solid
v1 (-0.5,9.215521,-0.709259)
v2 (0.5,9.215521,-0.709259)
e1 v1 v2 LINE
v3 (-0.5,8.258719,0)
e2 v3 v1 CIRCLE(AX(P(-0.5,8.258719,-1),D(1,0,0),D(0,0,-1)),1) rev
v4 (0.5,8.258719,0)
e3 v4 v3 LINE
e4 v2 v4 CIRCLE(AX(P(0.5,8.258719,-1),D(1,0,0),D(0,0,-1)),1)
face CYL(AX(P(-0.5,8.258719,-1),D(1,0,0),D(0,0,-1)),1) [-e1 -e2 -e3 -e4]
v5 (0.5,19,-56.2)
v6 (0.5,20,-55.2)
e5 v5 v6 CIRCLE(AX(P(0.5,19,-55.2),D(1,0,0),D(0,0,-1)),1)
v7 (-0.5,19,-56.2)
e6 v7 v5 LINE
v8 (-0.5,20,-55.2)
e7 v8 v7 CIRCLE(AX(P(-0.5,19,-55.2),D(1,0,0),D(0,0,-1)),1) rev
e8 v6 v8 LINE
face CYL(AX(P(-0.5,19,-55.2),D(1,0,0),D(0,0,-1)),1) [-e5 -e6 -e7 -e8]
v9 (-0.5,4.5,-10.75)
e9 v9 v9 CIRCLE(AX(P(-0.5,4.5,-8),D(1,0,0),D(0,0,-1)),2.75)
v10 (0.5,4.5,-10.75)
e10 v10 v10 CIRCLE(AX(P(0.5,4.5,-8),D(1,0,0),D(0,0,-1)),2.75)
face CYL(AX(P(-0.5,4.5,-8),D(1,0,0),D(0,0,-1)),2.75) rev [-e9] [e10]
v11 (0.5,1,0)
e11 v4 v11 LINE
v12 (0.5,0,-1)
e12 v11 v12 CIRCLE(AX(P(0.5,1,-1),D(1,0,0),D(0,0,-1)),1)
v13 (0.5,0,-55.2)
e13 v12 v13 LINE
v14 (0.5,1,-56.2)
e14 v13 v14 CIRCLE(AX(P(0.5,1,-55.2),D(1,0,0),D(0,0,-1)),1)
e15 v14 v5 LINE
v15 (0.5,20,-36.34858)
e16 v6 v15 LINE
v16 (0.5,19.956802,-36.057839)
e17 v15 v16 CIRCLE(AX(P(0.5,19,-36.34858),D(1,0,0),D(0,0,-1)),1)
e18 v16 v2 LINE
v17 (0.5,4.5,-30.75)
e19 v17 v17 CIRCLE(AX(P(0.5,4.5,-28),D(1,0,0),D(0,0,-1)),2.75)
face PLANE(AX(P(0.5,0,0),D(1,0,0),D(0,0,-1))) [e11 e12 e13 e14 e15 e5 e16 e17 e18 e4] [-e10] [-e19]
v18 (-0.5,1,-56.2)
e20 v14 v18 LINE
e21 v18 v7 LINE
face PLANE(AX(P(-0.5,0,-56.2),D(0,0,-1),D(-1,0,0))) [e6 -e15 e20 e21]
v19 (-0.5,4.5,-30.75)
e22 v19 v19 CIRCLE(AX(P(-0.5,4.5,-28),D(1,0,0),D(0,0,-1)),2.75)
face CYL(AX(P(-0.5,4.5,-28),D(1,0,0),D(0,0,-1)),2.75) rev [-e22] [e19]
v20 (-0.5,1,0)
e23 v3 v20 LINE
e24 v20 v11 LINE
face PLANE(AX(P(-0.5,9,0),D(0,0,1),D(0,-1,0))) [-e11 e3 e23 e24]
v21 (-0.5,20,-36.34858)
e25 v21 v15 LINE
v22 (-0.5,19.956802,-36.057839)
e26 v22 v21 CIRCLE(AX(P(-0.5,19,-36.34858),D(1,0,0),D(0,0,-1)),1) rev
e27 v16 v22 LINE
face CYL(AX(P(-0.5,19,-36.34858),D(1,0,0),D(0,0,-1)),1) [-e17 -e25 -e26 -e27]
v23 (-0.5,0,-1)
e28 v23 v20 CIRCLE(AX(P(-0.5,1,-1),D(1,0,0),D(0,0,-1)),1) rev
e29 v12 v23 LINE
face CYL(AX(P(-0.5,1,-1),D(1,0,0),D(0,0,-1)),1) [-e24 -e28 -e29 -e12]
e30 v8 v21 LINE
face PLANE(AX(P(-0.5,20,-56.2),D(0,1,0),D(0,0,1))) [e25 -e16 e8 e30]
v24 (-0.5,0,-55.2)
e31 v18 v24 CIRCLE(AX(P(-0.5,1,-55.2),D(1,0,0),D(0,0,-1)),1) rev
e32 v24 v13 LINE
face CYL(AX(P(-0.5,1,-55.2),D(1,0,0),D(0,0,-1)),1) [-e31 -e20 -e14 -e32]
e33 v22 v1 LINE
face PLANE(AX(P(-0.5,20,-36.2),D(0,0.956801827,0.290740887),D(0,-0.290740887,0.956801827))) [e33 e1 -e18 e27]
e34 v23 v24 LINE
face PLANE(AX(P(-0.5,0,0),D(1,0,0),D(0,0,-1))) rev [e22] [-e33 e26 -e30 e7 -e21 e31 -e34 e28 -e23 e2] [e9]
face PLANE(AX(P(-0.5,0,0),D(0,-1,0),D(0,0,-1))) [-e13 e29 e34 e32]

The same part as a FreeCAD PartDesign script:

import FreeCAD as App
import Part
import Sketcher

V = App.Vector
Q = App.Units.Quantity


def edges_at(feature, points):
    """Names of the edges that pass closest to the given points."""
    edges = feature.Shape.Edges
    near = lambda p: min(range(len(edges)), key=lambda i: edges[i].distToShape(Part.Vertex(*p))[0])
    return sorted({f"Edge{near(p) + 1}" for p in points})

doc = App.newDocument("Part")
body = doc.addObject("PartDesign::Body", "Body")

sketch1 = body.newObject("Sketcher::SketchObject", "Sketch")
sketch1.AttachmentSupport = (doc.getObject("YZ_Plane"), [""])
sketch1.MapMode = "FlatFace"
sketch1.addGeometry([
    Part.LineSegment(V(0, 0, 0), V(0, -56.2, 0)),
    Part.LineSegment(V(0, -56.2, 0), V(20, -56.2, 0)),
    Part.LineSegment(V(20, -56.2, 0), V(20, -36.2, 0)),
    Part.LineSegment(V(20, -36.2, 0), V(9, 0, 0)),
    Part.LineSegment(V(9, 0, 0), V(0, 0, 0)),
], False)
sketch1.addConstraint([
    Sketcher.Constraint("Coincident", 0, 2, 1, 1),
    Sketcher.Constraint("Coincident", 1, 2, 2, 1),
    Sketcher.Constraint("Coincident", 2, 2, 3, 1),
    Sketcher.Constraint("Coincident", 3, 2, 4, 1),
    Sketcher.Constraint("Coincident", 4, 2, 0, 1),
    Sketcher.Constraint("Vertical", 0),
    Sketcher.Constraint("Horizontal", 1),
    Sketcher.Constraint("Vertical", 2),
    Sketcher.Constraint("Horizontal", 4),
    Sketcher.Constraint("Coincident", 4, 2, -1, 1),
    Sketcher.Constraint("Equal", 1, 2),
    Sketcher.Constraint("DistanceX", 1, 1, 1, 2, Q("20 mm")),
    Sketcher.Constraint("DistanceX", 4, 2, 4, 1, Q("9 mm")),
    Sketcher.Constraint("DistanceY", 0, 2, 0, 1, Q("56.2 mm")),
])
pad1 = body.newObject("PartDesign::Pad", "Pad")
pad1.Profile = sketch1
pad1.Type = "TwoLengths"
pad1.Length = 0.5
pad1.Length2 = 0.5
doc.recompute()

fillet = body.newObject("PartDesign::Fillet", "Fillet")
fillet.Base = (pad1, edges_at(pad1, [
    (0, 9, 0),
    (0, 20, -36.2),
    (0, 20, -56.2),
    (0, 0, -56.2),
    (0, 0, 0),
]))
fillet.Radius = 1

sketch2 = body.newObject("Sketcher::SketchObject", "Sketch001")
sketch2.AttachmentSupport = (doc.getObject("YZ_Plane"), [""])
sketch2.MapMode = "FlatFace"
sketch2.AttachmentOffset = App.Placement(V(0, 0, 0.5), App.Rotation())
sketch2.addGeometry([
    Part.Circle(V(4.5, -8, 0), V(0, 0, 1), 2.75),
    Part.Circle(V(4.5, -28, 0), V(0, 0, 1), 2.75),
], False)
sketch2.addConstraint([
    Sketcher.Constraint("Equal", 0, 1),
    Sketcher.Constraint("Vertical", 0, 3, 1, 3),
    Sketcher.Constraint("Diameter", 0, Q("5.5 mm")),
    Sketcher.Constraint("DistanceY", 0, 3, -1, 1, Q("8 mm")),
    Sketcher.Constraint("DistanceY", 1, 3, -1, 1, Q("28 mm")),
    Sketcher.Constraint("DistanceX", -1, 1, 0, 3, Q("4.5 mm")),
])
pocket1 = body.newObject("PartDesign::Pocket", "Pocket")
pocket1.Profile = sketch2
pocket1.Type = "ThroughAll"

doc.recompute()
